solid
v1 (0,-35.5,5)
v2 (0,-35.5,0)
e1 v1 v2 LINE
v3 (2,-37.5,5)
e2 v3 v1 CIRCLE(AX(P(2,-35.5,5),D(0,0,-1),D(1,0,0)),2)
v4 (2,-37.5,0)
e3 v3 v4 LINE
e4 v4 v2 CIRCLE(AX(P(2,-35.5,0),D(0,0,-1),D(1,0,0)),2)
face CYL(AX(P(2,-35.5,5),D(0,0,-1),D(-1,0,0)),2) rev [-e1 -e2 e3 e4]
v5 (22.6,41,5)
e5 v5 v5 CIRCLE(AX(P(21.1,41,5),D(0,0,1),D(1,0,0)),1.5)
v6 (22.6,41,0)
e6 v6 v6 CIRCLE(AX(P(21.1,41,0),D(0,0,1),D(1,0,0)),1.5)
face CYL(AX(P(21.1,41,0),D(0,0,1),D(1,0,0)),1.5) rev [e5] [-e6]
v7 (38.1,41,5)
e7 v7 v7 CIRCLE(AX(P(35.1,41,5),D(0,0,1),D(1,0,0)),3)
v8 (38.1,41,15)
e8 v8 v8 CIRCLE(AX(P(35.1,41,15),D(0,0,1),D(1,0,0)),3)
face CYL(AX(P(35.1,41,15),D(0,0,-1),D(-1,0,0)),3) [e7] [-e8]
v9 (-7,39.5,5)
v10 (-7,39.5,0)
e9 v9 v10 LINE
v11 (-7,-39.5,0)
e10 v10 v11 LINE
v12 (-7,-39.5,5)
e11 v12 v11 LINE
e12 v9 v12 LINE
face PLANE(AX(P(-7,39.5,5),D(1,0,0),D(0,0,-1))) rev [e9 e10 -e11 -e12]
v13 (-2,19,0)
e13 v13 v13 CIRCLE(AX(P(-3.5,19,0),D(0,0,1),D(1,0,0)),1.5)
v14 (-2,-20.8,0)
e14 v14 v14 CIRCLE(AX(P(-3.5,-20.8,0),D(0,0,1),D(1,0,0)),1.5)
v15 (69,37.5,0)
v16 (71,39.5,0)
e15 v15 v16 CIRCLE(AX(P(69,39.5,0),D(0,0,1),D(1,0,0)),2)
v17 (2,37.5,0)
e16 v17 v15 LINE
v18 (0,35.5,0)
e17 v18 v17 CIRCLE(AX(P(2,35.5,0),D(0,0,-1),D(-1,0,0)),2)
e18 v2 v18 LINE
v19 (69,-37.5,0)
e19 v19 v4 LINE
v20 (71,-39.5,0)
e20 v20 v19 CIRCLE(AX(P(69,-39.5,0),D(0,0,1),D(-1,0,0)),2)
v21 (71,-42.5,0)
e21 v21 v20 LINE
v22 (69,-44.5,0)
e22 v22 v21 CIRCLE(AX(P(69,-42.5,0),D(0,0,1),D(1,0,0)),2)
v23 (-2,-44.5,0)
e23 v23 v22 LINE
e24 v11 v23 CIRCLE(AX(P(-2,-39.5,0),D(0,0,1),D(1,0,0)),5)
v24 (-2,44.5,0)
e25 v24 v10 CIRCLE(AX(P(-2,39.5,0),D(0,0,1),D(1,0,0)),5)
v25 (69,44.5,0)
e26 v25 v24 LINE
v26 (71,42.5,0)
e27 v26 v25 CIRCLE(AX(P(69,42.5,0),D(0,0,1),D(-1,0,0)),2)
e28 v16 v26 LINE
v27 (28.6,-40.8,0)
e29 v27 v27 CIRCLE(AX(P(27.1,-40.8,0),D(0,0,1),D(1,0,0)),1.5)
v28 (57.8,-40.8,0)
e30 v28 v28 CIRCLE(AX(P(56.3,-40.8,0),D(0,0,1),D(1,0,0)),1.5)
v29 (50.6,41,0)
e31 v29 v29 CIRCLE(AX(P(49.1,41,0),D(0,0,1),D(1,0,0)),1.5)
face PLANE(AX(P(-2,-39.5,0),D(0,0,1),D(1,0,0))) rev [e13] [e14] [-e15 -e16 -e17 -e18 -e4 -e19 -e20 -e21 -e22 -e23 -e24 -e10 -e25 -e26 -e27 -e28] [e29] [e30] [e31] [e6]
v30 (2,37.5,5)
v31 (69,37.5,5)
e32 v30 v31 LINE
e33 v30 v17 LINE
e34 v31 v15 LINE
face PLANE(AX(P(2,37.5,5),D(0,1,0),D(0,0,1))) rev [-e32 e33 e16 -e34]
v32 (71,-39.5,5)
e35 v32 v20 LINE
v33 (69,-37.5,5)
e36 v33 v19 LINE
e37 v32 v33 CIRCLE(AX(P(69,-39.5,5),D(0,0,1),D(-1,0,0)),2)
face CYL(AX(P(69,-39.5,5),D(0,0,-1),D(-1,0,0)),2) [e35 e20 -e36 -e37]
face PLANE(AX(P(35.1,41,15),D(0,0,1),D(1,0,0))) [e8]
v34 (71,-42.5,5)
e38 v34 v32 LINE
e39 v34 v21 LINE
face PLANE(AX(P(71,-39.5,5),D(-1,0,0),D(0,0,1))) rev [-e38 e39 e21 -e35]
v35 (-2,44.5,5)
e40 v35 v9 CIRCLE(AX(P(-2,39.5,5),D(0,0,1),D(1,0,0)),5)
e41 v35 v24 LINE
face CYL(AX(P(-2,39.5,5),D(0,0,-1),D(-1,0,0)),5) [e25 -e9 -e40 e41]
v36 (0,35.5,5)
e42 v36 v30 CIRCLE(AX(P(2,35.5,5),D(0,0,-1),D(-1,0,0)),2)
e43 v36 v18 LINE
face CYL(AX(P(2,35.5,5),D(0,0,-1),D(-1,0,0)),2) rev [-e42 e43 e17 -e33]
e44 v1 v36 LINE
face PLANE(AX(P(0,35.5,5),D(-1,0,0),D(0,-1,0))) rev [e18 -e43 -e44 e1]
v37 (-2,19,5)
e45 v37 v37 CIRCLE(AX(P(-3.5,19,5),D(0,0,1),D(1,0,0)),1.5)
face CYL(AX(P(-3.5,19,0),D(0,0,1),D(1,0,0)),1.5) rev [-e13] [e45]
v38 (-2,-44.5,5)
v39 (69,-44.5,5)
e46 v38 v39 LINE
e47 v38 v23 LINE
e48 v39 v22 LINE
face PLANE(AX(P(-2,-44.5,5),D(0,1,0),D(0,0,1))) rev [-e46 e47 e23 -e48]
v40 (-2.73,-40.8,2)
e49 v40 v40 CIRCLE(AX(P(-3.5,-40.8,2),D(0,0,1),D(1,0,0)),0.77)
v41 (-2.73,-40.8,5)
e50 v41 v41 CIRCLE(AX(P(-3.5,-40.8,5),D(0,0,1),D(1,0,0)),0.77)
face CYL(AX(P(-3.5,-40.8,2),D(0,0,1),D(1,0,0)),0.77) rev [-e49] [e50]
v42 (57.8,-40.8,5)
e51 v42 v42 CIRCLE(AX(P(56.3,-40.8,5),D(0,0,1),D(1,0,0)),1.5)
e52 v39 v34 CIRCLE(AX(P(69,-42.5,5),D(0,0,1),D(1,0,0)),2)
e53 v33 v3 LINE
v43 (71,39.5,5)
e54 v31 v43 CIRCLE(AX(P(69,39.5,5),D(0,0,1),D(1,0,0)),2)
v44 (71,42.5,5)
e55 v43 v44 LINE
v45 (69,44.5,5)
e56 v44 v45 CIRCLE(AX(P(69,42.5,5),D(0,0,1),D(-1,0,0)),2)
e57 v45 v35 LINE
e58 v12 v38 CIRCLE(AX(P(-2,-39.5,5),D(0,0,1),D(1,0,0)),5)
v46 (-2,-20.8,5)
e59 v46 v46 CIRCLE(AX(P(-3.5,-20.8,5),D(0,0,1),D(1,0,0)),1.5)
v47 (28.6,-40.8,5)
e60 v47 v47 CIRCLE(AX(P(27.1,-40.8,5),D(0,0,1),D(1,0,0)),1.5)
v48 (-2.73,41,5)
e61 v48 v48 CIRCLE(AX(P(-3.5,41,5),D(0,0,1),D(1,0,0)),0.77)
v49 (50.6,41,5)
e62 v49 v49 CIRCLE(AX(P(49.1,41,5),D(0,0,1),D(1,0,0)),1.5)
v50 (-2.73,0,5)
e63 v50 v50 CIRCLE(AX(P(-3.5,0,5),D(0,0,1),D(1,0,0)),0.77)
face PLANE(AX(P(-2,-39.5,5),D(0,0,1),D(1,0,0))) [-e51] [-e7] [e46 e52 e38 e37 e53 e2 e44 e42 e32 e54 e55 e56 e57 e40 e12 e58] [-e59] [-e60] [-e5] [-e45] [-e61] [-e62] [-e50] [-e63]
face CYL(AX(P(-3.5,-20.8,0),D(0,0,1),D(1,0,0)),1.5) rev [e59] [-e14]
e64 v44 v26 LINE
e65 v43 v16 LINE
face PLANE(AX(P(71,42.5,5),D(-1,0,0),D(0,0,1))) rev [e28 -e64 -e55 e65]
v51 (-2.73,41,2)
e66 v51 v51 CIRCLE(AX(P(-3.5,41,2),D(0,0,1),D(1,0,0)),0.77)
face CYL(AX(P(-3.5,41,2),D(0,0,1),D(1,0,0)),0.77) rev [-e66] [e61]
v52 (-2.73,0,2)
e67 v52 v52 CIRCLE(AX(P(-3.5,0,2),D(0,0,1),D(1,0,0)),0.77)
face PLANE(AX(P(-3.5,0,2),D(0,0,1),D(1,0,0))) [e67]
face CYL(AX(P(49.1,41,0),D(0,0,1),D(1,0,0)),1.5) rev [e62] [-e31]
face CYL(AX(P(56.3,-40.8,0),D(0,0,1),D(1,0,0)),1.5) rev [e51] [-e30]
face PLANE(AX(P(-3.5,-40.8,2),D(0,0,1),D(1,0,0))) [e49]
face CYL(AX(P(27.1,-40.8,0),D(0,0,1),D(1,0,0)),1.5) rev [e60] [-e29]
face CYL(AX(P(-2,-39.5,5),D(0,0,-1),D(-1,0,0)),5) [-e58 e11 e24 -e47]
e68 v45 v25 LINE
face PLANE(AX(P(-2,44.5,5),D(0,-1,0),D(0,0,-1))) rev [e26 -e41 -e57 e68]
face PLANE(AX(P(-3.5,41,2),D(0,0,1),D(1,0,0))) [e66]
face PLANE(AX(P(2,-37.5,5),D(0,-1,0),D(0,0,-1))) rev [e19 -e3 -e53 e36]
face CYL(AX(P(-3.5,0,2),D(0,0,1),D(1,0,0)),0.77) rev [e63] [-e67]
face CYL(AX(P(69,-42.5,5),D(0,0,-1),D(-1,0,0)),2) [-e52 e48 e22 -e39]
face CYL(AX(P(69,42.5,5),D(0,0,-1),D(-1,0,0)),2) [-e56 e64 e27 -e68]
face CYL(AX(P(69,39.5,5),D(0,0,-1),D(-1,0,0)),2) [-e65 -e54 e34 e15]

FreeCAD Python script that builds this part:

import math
import FreeCAD as App
import Part
import Sketcher

doc = App.newDocument("Part")
body = doc.addObject("PartDesign::Body", "Body")

sketch1 = doc.addObject("Sketcher::SketchObject", "Sketch")
body.addObject(sketch1)
sketch1.AttachmentSupport = (doc.XY_Plane, [""])
sketch1.MapMode = "FlatFace"
sketch1.addGeometry(Part.LineSegment(App.Vector(0, -35.5, 0), App.Vector(0, 35.5, 0)), False)
sketch1.addGeometry(Part.ArcOfCircle(Part.Circle(App.Vector(2, 35.5, 0), App.Vector(0, 0, 1), 2), math.radians(90), math.radians(180)), False)
sketch1.addGeometry(Part.LineSegment(App.Vector(2, 37.5, 0), App.Vector(69, 37.5, 0)), False)
sketch1.addGeometry(Part.ArcOfCircle(Part.Circle(App.Vector(69, 39.5, 0), App.Vector(0, 0, 1), 2), math.radians(-90), math.radians(0)), False)
sketch1.addGeometry(Part.LineSegment(App.Vector(71, 39.5, 0), App.Vector(71, 42.5, 0)), False)
sketch1.addGeometry(Part.ArcOfCircle(Part.Circle(App.Vector(69, 42.5, 0), App.Vector(0, 0, 1), 2), math.radians(0), math.radians(90)), False)
sketch1.addGeometry(Part.LineSegment(App.Vector(69, 44.5, 0), App.Vector(-2, 44.5, 0)), False)
sketch1.addGeometry(Part.ArcOfCircle(Part.Circle(App.Vector(-2, 39.5, 0), App.Vector(0, 0, 1), 5), math.radians(90), math.radians(180)), False)
sketch1.addGeometry(Part.LineSegment(App.Vector(-7, 39.5, 0), App.Vector(-7, -39.5, 0)), False)
sketch1.addGeometry(Part.ArcOfCircle(Part.Circle(App.Vector(-2, -39.5, 0), App.Vector(0, 0, 1), 5), math.radians(180), math.radians(270)), False)
sketch1.addGeometry(Part.LineSegment(App.Vector(-2, -44.5, 0), App.Vector(69, -44.5, 0)), False)
sketch1.addGeometry(Part.ArcOfCircle(Part.Circle(App.Vector(69, -42.5, 0), App.Vector(0, 0, 1), 2), math.radians(-90), math.radians(0)), False)
sketch1.addGeometry(Part.LineSegment(App.Vector(71, -42.5, 0), App.Vector(71, -39.5, 0)), False)
sketch1.addGeometry(Part.ArcOfCircle(Part.Circle(App.Vector(69, -39.5, 0), App.Vector(0, 0, 1), 2), math.radians(0), math.radians(90)), False)
sketch1.addGeometry(Part.LineSegment(App.Vector(69, -37.5, 0), App.Vector(2, -37.5, 0)), False)
sketch1.addGeometry(Part.ArcOfCircle(Part.Circle(App.Vector(2, -35.5, 0), App.Vector(0, 0, 1), 2), math.radians(-180), math.radians(-90)), False)
sketch1.addConstraint(Sketcher.Constraint("Tangent", 0, 2, 1, 2))
sketch1.addConstraint(Sketcher.Constraint("Tangent", 1, 1, 2, 1))
sketch1.addConstraint(Sketcher.Constraint("Tangent", 2, 2, 3, 1))
sketch1.addConstraint(Sketcher.Constraint("Tangent", 3, 2, 4, 1))
sketch1.addConstraint(Sketcher.Constraint("Tangent", 4, 2, 5, 1))
sketch1.addConstraint(Sketcher.Constraint("Tangent", 5, 2, 6, 1))
sketch1.addConstraint(Sketcher.Constraint("Tangent", 6, 2, 7, 1))
sketch1.addConstraint(Sketcher.Constraint("Tangent", 7, 2, 8, 1))
sketch1.addConstraint(Sketcher.Constraint("Tangent", 8, 2, 9, 1))
sketch1.addConstraint(Sketcher.Constraint("Tangent", 9, 2, 10, 1))
sketch1.addConstraint(Sketcher.Constraint("Tangent", 10, 2, 11, 1))
sketch1.addConstraint(Sketcher.Constraint("Tangent", 11, 2, 12, 1))
sketch1.addConstraint(Sketcher.Constraint("Tangent", 12, 2, 13, 1))
sketch1.addConstraint(Sketcher.Constraint("Tangent", 13, 2, 14, 1))
sketch1.addConstraint(Sketcher.Constraint("Tangent", 14, 2, 15, 2))
sketch1.addConstraint(Sketcher.Constraint("Tangent", 15, 1, 0, 1))
sketch1.addConstraint(Sketcher.Constraint("Vertical", 0))
sketch1.addConstraint(Sketcher.Constraint("Horizontal", 2))
sketch1.addConstraint(Sketcher.Constraint("Vertical", 4))
sketch1.addConstraint(Sketcher.Constraint("Horizontal", 6))
sketch1.addConstraint(Sketcher.Constraint("Vertical", 8))
sketch1.addConstraint(Sketcher.Constraint("Horizontal", 10))
sketch1.addConstraint(Sketcher.Constraint("Vertical", 12))
sketch1.addConstraint(Sketcher.Constraint("Horizontal", 14))
sketch1.addConstraint(Sketcher.Constraint("Equal", 1, 3))
sketch1.addConstraint(Sketcher.Constraint("Equal", 3, 5))
sketch1.addConstraint(Sketcher.Constraint("Equal", 7, 9))
sketch1.addConstraint(Sketcher.Constraint("Equal", 5, 11))
sketch1.addConstraint(Sketcher.Constraint("Equal", 11, 13))
sketch1.addConstraint(Sketcher.Constraint("Equal", 13, 15))
sketch1.addConstraint(Sketcher.Constraint("Symmetric", 0, 2, 15, 1, -1, 1))
sketch1.addConstraint(Sketcher.Constraint("Symmetric", 5, 3, 11, 3, -1))
sketch1.addConstraint(Sketcher.Constraint("Horizontal", 3, 3, 7, 3))
sketch1.addConstraint(Sketcher.Constraint("Equal", 10, 0))
sketch1.addConstraint(Sketcher.Constraint("Radius", 1, 2.0))
sketch1.addConstraint(Sketcher.Constraint("Radius", 7, 5.0))
sketch1.addConstraint(Sketcher.Constraint("DistanceX", 2, 1, 2, 2, 67.0))
sketch1.addConstraint(Sketcher.Constraint("DistanceX", 6, 2, 6, 1, 71.0))
pad1 = doc.addObject("PartDesign::Pad", "Pad")
body.addObject(pad1)
pad1.Profile = sketch1
pad1.Length = 5

sketch2 = doc.addObject("Sketcher::SketchObject", "Sketch001")
body.addObject(sketch2)
sketch2.AttachmentSupport = (doc.XY_Plane, [""])
sketch2.MapMode = "FlatFace"
sketch2.AttachmentOffset = App.Placement(App.Vector(0, 0, 5), App.Rotation())
sketch2.addGeometry(Part.Circle(App.Vector(35.1, 41, 0), App.Vector(0, 0, 1), 3), False)
sketch2.addConstraint(Sketcher.Constraint("Diameter", 0, 6.0))
sketch2.addConstraint(Sketcher.Constraint("DistanceY", -1, 1, 0, 3, 41.0))
sketch2.addConstraint(Sketcher.Constraint("DistanceX", -1, 1, 0, 3, 35.1))
pad2 = doc.addObject("PartDesign::Pad", "Pad001")
body.addObject(pad2)
pad2.Profile = sketch2
pad2.Length = 10

sketch3 = doc.addObject("Sketcher::SketchObject", "Sketch002")
body.addObject(sketch3)
sketch3.AttachmentSupport = (doc.XY_Plane, [""])
sketch3.MapMode = "FlatFace"
sketch3.AttachmentOffset = App.Placement(App.Vector(0, 0, 5), App.Rotation())
sketch3.addGeometry(Part.Circle(App.Vector(49.1, 41, 0), App.Vector(0, 0, 1), 1.5), False)
sketch3.addGeometry(Part.Circle(App.Vector(21.1, 41, 0), App.Vector(0, 0, 1), 1.5), False)
sketch3.addGeometry(Part.Circle(App.Vector(-3.5, 19, 0), App.Vector(0, 0, 1), 1.5), False)
sketch3.addGeometry(Part.Circle(App.Vector(-3.5, -20.8, 0), App.Vector(0, 0, 1), 1.5), False)
sketch3.addGeometry(Part.Circle(App.Vector(27.1, -40.8, 0), App.Vector(0, 0, 1), 1.5), False)
sketch3.addGeometry(Part.Circle(App.Vector(56.3, -40.8, 0), App.Vector(0, 0, 1), 1.5), False)
sketch3.addConstraint(Sketcher.Constraint("Equal", 0, 1))
sketch3.addConstraint(Sketcher.Constraint("Equal", 1, 2))
sketch3.addConstraint(Sketcher.Constraint("Equal", 2, 3))
sketch3.addConstraint(Sketcher.Constraint("Equal", 3, 4))
sketch3.addConstraint(Sketcher.Constraint("Equal", 4, 5))
sketch3.addConstraint(Sketcher.Constraint("Horizontal", 0, 3, 1, 3))
sketch3.addConstraint(Sketcher.Constraint("Horizontal", 4, 3, 5, 3))
sketch3.addConstraint(Sketcher.Constraint("Vertical", 2, 3, 3, 3))
sketch3.addConstraint(Sketcher.Constraint("Diameter", 0, 3.0))
sketch3.addConstraint(Sketcher.Constraint("DistanceY", -1, 1, 0, 3, 41.0))
sketch3.addConstraint(Sketcher.Constraint("DistanceY", -1, 1, 2, 3, 19.0))
sketch3.addConstraint(Sketcher.Constraint("DistanceX", 1, 3, 0, 3, 28.0))
sketch3.addConstraint(Sketcher.Constraint("DistanceY", 4, 3, 3, 3, 20.0))
sketch3.addConstraint(Sketcher.Constraint("DistanceX", 1, 3, 4, 3, 6.0))
sketch3.addConstraint(Sketcher.Constraint("DistanceX", -1, 1, 0, 3, 49.1))
sketch3.addConstraint(Sketcher.Constraint("DistanceX", 2, 3, -1, 1, 3.5))
sketch3.addConstraint(Sketcher.Constraint("DistanceY", 3, 3, -1, 1, 20.8))
sketch3.addConstraint(Sketcher.Constraint("DistanceX", -1, 1, 5, 3, 56.3))
pocket1 = doc.addObject("PartDesign::Pocket", "Pocket")
body.addObject(pocket1)
pocket1.Profile = sketch3
pocket1.Type = "ThroughAll"

sketch4 = doc.addObject("Sketcher::SketchObject", "Sketch003")
body.addObject(sketch4)
sketch4.AttachmentSupport = (doc.XY_Plane, [""])
sketch4.MapMode = "FlatFace"
sketch4.AttachmentOffset = App.Placement(App.Vector(0, 0, 5), App.Rotation())
sketch4.addGeometry(Part.Circle(App.Vector(-3.5, 0, 0), App.Vector(0, 0, 1), 0.77), False)
sketch4.addGeometry(Part.Circle(App.Vector(-3.5, 41, 0), App.Vector(0, 0, 1), 0.77), False)
sketch4.addGeometry(Part.Circle(App.Vector(-3.5, -40.8, 0), App.Vector(0, 0, 1), 0.77), False)
sketch4.addConstraint(Sketcher.Constraint("Equal", 0, 1))
sketch4.addConstraint(Sketcher.Constraint("Equal", 1, 2))
sketch4.addConstraint(Sketcher.Constraint("PointOnObject", 0, 3, -1))
sketch4.addConstraint(Sketcher.Constraint("Vertical", 0, 3, 1, 3))
sketch4.addConstraint(Sketcher.Constraint("Vertical", 1, 3, 2, 3))
sketch4.addConstraint(Sketcher.Constraint("Diameter", 0, 1.54))
sketch4.addConstraint(Sketcher.Constraint("DistanceY", -1, 1, 1, 3, 41.0))
sketch4.addConstraint(Sketcher.Constraint("DistanceX", 0, 3, -1, 1, 3.5))
sketch4.addConstraint(Sketcher.Constraint("DistanceY", 2, 3, -1, 1, 40.8))
pocket2 = doc.addObject("PartDesign::Pocket", "Pocket001")
body.addObject(pocket2)
pocket2.Profile = sketch4
pocket2.Length = 3

doc.recompute()
